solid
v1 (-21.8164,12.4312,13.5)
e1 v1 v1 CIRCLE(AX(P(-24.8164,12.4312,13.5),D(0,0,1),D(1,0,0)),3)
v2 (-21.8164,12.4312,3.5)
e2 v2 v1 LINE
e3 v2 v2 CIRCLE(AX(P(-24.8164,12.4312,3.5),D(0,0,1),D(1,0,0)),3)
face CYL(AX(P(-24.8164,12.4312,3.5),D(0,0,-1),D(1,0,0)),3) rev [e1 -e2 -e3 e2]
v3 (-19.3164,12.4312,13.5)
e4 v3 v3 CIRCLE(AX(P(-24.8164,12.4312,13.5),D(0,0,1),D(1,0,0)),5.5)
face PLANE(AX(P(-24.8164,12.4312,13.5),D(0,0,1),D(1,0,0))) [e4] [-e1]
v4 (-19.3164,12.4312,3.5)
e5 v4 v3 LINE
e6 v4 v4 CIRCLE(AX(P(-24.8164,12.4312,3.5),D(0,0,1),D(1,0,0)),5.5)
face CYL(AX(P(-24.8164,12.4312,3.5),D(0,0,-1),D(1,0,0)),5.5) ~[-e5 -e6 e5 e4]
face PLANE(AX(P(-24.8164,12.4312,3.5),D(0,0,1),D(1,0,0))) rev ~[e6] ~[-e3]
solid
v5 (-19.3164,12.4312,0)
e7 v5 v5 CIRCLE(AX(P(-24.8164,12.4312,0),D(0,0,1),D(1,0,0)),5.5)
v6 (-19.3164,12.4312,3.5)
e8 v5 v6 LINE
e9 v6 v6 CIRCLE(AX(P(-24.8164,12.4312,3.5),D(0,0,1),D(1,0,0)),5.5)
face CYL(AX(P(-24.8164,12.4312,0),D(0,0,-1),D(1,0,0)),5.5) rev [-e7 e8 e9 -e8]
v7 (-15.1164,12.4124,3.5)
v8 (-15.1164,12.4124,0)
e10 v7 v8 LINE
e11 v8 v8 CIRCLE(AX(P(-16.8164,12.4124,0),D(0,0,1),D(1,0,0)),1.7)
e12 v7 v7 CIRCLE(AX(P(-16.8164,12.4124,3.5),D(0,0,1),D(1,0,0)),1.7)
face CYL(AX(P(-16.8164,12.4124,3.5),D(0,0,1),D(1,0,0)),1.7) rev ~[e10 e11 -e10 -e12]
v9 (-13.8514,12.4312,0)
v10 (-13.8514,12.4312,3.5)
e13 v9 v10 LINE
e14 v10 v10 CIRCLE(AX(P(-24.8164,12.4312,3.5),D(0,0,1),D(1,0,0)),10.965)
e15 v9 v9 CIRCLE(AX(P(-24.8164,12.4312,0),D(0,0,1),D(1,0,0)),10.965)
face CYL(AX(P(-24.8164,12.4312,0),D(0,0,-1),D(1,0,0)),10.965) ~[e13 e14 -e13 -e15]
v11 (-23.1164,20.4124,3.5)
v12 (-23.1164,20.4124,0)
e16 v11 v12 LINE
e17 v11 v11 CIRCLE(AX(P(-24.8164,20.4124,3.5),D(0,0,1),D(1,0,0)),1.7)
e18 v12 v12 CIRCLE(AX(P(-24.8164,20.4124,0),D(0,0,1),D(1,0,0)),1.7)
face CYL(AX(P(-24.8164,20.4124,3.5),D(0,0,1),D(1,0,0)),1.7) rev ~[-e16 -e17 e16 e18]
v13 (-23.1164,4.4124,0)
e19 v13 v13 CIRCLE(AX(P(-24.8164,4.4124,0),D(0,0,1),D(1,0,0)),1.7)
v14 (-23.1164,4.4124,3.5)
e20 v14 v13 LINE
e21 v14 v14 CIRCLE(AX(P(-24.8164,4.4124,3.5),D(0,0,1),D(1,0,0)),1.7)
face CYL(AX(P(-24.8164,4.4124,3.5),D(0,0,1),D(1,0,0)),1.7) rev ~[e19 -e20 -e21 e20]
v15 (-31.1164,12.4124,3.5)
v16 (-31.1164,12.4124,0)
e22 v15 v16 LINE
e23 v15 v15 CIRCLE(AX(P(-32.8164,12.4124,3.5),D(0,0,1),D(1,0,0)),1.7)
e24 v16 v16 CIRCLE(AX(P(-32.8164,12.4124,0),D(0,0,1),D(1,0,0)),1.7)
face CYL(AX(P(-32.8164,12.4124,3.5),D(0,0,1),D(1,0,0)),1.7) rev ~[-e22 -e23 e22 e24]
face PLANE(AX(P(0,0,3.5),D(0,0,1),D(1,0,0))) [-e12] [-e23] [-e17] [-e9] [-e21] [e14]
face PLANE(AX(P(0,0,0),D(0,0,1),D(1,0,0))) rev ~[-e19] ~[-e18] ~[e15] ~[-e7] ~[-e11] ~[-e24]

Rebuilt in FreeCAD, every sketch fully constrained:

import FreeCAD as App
import Part
import Sketcher

doc = App.newDocument("Part")
body = doc.addObject("PartDesign::Body", "Body")
body.AllowCompound = True

sketch1 = body.newObject("Sketcher::SketchObject", "Sketch")
sketch1.AttachmentSupport = (doc.getObject("XY_Plane"), [""])
sketch1.MapMode = "FlatFace"
sketch1.addGeometry(Part.Circle(App.Vector(-24.8164, 12.4312, 0), App.Vector(0, 0, 1), 10.965), False)
sketch1.addGeometry(Part.Circle(App.Vector(-24.8164, 12.4312, 0), App.Vector(0, 0, 1), 5.5), False)
sketch1.addConstraint(Sketcher.Constraint("Coincident", 1, 3, 0, 3))
sketch1.addConstraint(Sketcher.Constraint("Diameter", 0, 21.93))
sketch1.addConstraint(Sketcher.Constraint("Diameter", 1, 11.0))
sketch1.addConstraint(Sketcher.Constraint("DistanceX", 0, 3, -1, 1, 24.8164))
sketch1.addConstraint(Sketcher.Constraint("DistanceY", -1, 1, 0, 3, 12.4312))
pad1 = body.newObject("PartDesign::Pad", "Pad")
pad1.Profile = sketch1
pad1.Length = 3.5

sketch2 = body.newObject("Sketcher::SketchObject", "Sketch001")
sketch2.AttachmentSupport = (doc.getObject("XY_Plane"), [""])
sketch2.MapMode = "FlatFace"
sketch2.AttachmentOffset = App.Placement(App.Vector(0, 0, 3.5), App.Rotation())
sketch2.addGeometry(Part.Circle(App.Vector(-24.8164, 12.4312, 0), App.Vector(0, 0, 1), 5.5), False)
sketch2.addGeometry(Part.Circle(App.Vector(-24.8164, 12.4312, 0), App.Vector(0, 0, 1), 3), False)
sketch2.addConstraint(Sketcher.Constraint("Coincident", 1, 3, 0, 3))
sketch2.addConstraint(Sketcher.Constraint("Diameter", 1, 6.0))
sketch2.addConstraint(Sketcher.Constraint("Diameter", 0, 11.0))
sketch2.addConstraint(Sketcher.Constraint("DistanceX", 0, 3, -1, 1, 24.8164))
sketch2.addConstraint(Sketcher.Constraint("DistanceY", -1, 1, 0, 3, 12.4312))
pad2 = body.newObject("PartDesign::Pad", "Pad001")
pad2.Profile = sketch2
pad2.Length = 10

sketch3 = body.newObject("Sketcher::SketchObject", "Sketch002")
sketch3.AttachmentSupport = (doc.getObject("XY_Plane"), [""])
sketch3.MapMode = "FlatFace"
sketch3.AttachmentOffset = App.Placement(App.Vector(0, 0, 3.5), App.Rotation())
sketch3.addGeometry(Part.Circle(App.Vector(-32.8164, 12.4124, 0), App.Vector(0, 0, 1), 1.7), False)
sketch3.addGeometry(Part.Circle(App.Vector(-24.8164, 4.4124, 0), App.Vector(0, 0, 1), 1.7), False)
sketch3.addGeometry(Part.Circle(App.Vector(-16.8164, 12.4124, 0), App.Vector(0, 0, 1), 1.7), False)
sketch3.addGeometry(Part.Circle(App.Vector(-24.8164, 20.4124, 0), App.Vector(0, 0, 1), 1.7), False)
sketch3.addConstraint(Sketcher.Constraint("Equal", 0, 1))
sketch3.addConstraint(Sketcher.Constraint("Equal", 1, 2))
sketch3.addConstraint(Sketcher.Constraint("Equal", 2, 3))
sketch3.addConstraint(Sketcher.Constraint("Horizontal", 0, 3, 2, 3))
sketch3.addConstraint(Sketcher.Constraint("Vertical", 1, 3, 3, 3))
sketch3.addConstraint(Sketcher.Constraint("Diameter", 0, 3.4))
sketch3.addConstraint(Sketcher.Constraint("DistanceX", 0, 3, 1, 3, 8.0))
sketch3.addConstraint(Sketcher.Constraint("DistanceY", 1, 3, 0, 3, 8.0))
sketch3.addConstraint(Sketcher.Constraint("DistanceX", 1, 3, 2, 3, 8.0))
sketch3.addConstraint(Sketcher.Constraint("DistanceY", 0, 3, 3, 3, 8.0))
sketch3.addConstraint(Sketcher.Constraint("DistanceX", 0, 3, -1, 1, 32.8164))
sketch3.addConstraint(Sketcher.Constraint("DistanceY", -1, 1, 0, 3, 12.4124))
pocket1 = body.newObject("PartDesign::Pocket", "Pocket")
pocket1.Profile = sketch3
pocket1.Length = 10

doc.recompute()
